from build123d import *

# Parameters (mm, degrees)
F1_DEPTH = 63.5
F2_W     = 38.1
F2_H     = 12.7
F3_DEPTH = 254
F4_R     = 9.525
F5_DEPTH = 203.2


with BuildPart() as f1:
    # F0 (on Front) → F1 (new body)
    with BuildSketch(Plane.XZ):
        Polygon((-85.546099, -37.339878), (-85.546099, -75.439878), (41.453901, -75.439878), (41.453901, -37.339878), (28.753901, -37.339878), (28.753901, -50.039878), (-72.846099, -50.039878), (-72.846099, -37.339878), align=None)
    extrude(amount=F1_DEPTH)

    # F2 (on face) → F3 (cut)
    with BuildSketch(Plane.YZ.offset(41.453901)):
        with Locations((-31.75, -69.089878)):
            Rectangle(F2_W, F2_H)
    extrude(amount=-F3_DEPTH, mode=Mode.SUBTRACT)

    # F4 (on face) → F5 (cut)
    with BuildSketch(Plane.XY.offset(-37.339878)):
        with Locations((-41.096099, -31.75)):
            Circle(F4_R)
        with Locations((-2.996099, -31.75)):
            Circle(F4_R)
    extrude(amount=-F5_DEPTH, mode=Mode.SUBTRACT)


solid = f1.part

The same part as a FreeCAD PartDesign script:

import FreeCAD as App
import Part
import Sketcher

V = App.Vector
Q = App.Units.Quantity

doc = App.newDocument("Part")
body = doc.addObject("PartDesign::Body", "Body")

sketch1 = doc.addObject("Sketcher::SketchObject", "Sketch")
body.addObject(sketch1)
sketch1.AttachmentSupport = (doc.XZ_Plane, [""])
sketch1.MapMode = "FlatFace"
sketch1.addGeometry(Part.LineSegment(V(-85.546099, -37.339878, 0), V(-85.546099, -75.439878, 0)), False)
sketch1.addGeometry(Part.LineSegment(V(-85.546099, -75.439878, 0), V(41.453901, -75.439878, 0)), False)
sketch1.addGeometry(Part.LineSegment(V(41.453901, -75.439878, 0), V(41.453901, -37.339878, 0)), False)
sketch1.addGeometry(Part.LineSegment(V(41.453901, -37.339878, 0), V(28.753901, -37.339878, 0)), False)
sketch1.addGeometry(Part.LineSegment(V(28.753901, -37.339878, 0), V(28.753901, -50.039878, 0)), False)
sketch1.addGeometry(Part.LineSegment(V(28.753901, -50.039878, 0), V(-72.846099, -50.039878, 0)), False)
sketch1.addGeometry(Part.LineSegment(V(-72.846099, -50.039878, 0), V(-72.846099, -37.339878, 0)), False)
sketch1.addGeometry(Part.LineSegment(V(-72.846099, -37.339878, 0), V(-85.546099, -37.339878, 0)), False)
sketch1.addConstraint(Sketcher.Constraint("Coincident", 0, 2, 1, 1))
sketch1.addConstraint(Sketcher.Constraint("Coincident", 1, 2, 2, 1))
sketch1.addConstraint(Sketcher.Constraint("Coincident", 2, 2, 3, 1))
sketch1.addConstraint(Sketcher.Constraint("Coincident", 3, 2, 4, 1))
sketch1.addConstraint(Sketcher.Constraint("Coincident", 4, 2, 5, 1))
sketch1.addConstraint(Sketcher.Constraint("Coincident", 5, 2, 6, 1))
sketch1.addConstraint(Sketcher.Constraint("Coincident", 6, 2, 7, 1))
sketch1.addConstraint(Sketcher.Constraint("Coincident", 7, 2, 0, 1))
sketch1.addConstraint(Sketcher.Constraint("Vertical", 0))
sketch1.addConstraint(Sketcher.Constraint("Horizontal", 1))
sketch1.addConstraint(Sketcher.Constraint("Vertical", 2))
sketch1.addConstraint(Sketcher.Constraint("Horizontal", 3))
sketch1.addConstraint(Sketcher.Constraint("Vertical", 4))
sketch1.addConstraint(Sketcher.Constraint("Horizontal", 5))
sketch1.addConstraint(Sketcher.Constraint("Vertical", 6))
sketch1.addConstraint(Sketcher.Constraint("Horizontal", 7))
sketch1.addConstraint(Sketcher.Constraint("Horizontal", 3, 2, 6, 2))
sketch1.addConstraint(Sketcher.Constraint("Equal", 3, 7))
sketch1.addConstraint(Sketcher.Constraint("Equal", 7, 4))
sketch1.addConstraint(Sketcher.Constraint("DistanceX", 1, 1, 1, 2, Q("5 in")))
sketch1.addConstraint(Sketcher.Constraint("DistanceX", 5, 2, 5, 1, Q("4 in")))
sketch1.addConstraint(Sketcher.Constraint("DistanceY", 0, 2, 0, 1, Q("1.5 in")))
sketch1.addConstraint(Sketcher.Constraint("DistanceX", 0, 2, -1, 1, Q("85.546099 mm")))
sketch1.addConstraint(Sketcher.Constraint("DistanceY", 4, 2, -1, 1, Q("50.039878 mm")))
pad1 = doc.addObject("PartDesign::Pad", "Pad")
body.addObject(pad1)
pad1.Profile = sketch1
pad1.Length = Q("2.5 in")

sketch2 = doc.addObject("Sketcher::SketchObject", "Sketch001")
body.addObject(sketch2)
sketch2.AttachmentSupport = (doc.YZ_Plane, [""])
sketch2.MapMode = "FlatFace"
sketch2.AttachmentOffset = App.Placement(V(0, 0, 41.453901), App.Rotation())
sketch2.addGeometry(Part.LineSegment(V(-50.8, -62.739878, 0), V(-50.8, -75.439878, 0)), False)
sketch2.addGeometry(Part.LineSegment(V(-50.8, -75.439878, 0), V(-12.7, -75.439878, 0)), False)
sketch2.addGeometry(Part.LineSegment(V(-12.7, -75.439878, 0), V(-12.7, -62.739878, 0)), False)
sketch2.addGeometry(Part.LineSegment(V(-12.7, -62.739878, 0), V(-50.8, -62.739878, 0)), False)
sketch2.addConstraint(Sketcher.Constraint("Coincident", 0, 2, 1, 1))
sketch2.addConstraint(Sketcher.Constraint("Coincident", 1, 2, 2, 1))
sketch2.addConstraint(Sketcher.Constraint("Coincident", 2, 2, 3, 1))
sketch2.addConstraint(Sketcher.Constraint("Coincident", 3, 2, 0, 1))
sketch2.addConstraint(Sketcher.Constraint("Vertical", 0))
sketch2.addConstraint(Sketcher.Constraint("Horizontal", 1))
sketch2.addConstraint(Sketcher.Constraint("Vertical", 2))
sketch2.addConstraint(Sketcher.Constraint("Horizontal", 3))
sketch2.addConstraint(Sketcher.Constraint("DistanceX", 1, 1, 1, 2, Q("1.5 in")))
sketch2.addConstraint(Sketcher.Constraint("DistanceY", 0, 2, 0, 1, Q("0.5 in")))
sketch2.addConstraint(Sketcher.Constraint("DistanceX", 0, 2, -1, 1, Q("2 in")))
sketch2.addConstraint(Sketcher.Constraint("DistanceY", 0, 2, -1, 1, Q("75.439878 mm")))
pocket1 = doc.addObject("PartDesign::Pocket", "Pocket")
body.addObject(pocket1)
pocket1.Profile = sketch2
pocket1.Length = Q("10 in")

sketch3 = doc.addObject("Sketcher::SketchObject", "Sketch002")
body.addObject(sketch3)
sketch3.AttachmentSupport = (doc.XY_Plane, [""])
sketch3.MapMode = "FlatFace"
sketch3.AttachmentOffset = App.Placement(V(0, 0, -37.339878), App.Rotation())
sketch3.addGeometry(Part.Circle(V(-41.096099, -31.75, 0), V(0, 0, 1), 9.525), False)
sketch3.addGeometry(Part.Circle(V(-2.996099, -31.75, 0), V(0, 0, 1), 9.525), False)
sketch3.addConstraint(Sketcher.Constraint("Equal", 0, 1))
sketch3.addConstraint(Sketcher.Constraint("Horizontal", 0, 3, 1, 3))
sketch3.addConstraint(Sketcher.Constraint("Diameter", 0, Q("0.75 in")))
sketch3.addConstraint(Sketcher.Constraint("DistanceX", 0, 3, 1, 3, Q("1.5 in")))
sketch3.addConstraint(Sketcher.Constraint("DistanceY", 0, 3, -1, 1, Q("1.25 in")))
sketch3.addConstraint(Sketcher.Constraint("DistanceX", 0, 3, -1, 1, Q("41.096099 mm")))
pocket2 = doc.addObject("PartDesign::Pocket", "Pocket001")
body.addObject(pocket2)
pocket2.Profile = sketch3
pocket2.Length = Q("8 in")

doc.recompute()
